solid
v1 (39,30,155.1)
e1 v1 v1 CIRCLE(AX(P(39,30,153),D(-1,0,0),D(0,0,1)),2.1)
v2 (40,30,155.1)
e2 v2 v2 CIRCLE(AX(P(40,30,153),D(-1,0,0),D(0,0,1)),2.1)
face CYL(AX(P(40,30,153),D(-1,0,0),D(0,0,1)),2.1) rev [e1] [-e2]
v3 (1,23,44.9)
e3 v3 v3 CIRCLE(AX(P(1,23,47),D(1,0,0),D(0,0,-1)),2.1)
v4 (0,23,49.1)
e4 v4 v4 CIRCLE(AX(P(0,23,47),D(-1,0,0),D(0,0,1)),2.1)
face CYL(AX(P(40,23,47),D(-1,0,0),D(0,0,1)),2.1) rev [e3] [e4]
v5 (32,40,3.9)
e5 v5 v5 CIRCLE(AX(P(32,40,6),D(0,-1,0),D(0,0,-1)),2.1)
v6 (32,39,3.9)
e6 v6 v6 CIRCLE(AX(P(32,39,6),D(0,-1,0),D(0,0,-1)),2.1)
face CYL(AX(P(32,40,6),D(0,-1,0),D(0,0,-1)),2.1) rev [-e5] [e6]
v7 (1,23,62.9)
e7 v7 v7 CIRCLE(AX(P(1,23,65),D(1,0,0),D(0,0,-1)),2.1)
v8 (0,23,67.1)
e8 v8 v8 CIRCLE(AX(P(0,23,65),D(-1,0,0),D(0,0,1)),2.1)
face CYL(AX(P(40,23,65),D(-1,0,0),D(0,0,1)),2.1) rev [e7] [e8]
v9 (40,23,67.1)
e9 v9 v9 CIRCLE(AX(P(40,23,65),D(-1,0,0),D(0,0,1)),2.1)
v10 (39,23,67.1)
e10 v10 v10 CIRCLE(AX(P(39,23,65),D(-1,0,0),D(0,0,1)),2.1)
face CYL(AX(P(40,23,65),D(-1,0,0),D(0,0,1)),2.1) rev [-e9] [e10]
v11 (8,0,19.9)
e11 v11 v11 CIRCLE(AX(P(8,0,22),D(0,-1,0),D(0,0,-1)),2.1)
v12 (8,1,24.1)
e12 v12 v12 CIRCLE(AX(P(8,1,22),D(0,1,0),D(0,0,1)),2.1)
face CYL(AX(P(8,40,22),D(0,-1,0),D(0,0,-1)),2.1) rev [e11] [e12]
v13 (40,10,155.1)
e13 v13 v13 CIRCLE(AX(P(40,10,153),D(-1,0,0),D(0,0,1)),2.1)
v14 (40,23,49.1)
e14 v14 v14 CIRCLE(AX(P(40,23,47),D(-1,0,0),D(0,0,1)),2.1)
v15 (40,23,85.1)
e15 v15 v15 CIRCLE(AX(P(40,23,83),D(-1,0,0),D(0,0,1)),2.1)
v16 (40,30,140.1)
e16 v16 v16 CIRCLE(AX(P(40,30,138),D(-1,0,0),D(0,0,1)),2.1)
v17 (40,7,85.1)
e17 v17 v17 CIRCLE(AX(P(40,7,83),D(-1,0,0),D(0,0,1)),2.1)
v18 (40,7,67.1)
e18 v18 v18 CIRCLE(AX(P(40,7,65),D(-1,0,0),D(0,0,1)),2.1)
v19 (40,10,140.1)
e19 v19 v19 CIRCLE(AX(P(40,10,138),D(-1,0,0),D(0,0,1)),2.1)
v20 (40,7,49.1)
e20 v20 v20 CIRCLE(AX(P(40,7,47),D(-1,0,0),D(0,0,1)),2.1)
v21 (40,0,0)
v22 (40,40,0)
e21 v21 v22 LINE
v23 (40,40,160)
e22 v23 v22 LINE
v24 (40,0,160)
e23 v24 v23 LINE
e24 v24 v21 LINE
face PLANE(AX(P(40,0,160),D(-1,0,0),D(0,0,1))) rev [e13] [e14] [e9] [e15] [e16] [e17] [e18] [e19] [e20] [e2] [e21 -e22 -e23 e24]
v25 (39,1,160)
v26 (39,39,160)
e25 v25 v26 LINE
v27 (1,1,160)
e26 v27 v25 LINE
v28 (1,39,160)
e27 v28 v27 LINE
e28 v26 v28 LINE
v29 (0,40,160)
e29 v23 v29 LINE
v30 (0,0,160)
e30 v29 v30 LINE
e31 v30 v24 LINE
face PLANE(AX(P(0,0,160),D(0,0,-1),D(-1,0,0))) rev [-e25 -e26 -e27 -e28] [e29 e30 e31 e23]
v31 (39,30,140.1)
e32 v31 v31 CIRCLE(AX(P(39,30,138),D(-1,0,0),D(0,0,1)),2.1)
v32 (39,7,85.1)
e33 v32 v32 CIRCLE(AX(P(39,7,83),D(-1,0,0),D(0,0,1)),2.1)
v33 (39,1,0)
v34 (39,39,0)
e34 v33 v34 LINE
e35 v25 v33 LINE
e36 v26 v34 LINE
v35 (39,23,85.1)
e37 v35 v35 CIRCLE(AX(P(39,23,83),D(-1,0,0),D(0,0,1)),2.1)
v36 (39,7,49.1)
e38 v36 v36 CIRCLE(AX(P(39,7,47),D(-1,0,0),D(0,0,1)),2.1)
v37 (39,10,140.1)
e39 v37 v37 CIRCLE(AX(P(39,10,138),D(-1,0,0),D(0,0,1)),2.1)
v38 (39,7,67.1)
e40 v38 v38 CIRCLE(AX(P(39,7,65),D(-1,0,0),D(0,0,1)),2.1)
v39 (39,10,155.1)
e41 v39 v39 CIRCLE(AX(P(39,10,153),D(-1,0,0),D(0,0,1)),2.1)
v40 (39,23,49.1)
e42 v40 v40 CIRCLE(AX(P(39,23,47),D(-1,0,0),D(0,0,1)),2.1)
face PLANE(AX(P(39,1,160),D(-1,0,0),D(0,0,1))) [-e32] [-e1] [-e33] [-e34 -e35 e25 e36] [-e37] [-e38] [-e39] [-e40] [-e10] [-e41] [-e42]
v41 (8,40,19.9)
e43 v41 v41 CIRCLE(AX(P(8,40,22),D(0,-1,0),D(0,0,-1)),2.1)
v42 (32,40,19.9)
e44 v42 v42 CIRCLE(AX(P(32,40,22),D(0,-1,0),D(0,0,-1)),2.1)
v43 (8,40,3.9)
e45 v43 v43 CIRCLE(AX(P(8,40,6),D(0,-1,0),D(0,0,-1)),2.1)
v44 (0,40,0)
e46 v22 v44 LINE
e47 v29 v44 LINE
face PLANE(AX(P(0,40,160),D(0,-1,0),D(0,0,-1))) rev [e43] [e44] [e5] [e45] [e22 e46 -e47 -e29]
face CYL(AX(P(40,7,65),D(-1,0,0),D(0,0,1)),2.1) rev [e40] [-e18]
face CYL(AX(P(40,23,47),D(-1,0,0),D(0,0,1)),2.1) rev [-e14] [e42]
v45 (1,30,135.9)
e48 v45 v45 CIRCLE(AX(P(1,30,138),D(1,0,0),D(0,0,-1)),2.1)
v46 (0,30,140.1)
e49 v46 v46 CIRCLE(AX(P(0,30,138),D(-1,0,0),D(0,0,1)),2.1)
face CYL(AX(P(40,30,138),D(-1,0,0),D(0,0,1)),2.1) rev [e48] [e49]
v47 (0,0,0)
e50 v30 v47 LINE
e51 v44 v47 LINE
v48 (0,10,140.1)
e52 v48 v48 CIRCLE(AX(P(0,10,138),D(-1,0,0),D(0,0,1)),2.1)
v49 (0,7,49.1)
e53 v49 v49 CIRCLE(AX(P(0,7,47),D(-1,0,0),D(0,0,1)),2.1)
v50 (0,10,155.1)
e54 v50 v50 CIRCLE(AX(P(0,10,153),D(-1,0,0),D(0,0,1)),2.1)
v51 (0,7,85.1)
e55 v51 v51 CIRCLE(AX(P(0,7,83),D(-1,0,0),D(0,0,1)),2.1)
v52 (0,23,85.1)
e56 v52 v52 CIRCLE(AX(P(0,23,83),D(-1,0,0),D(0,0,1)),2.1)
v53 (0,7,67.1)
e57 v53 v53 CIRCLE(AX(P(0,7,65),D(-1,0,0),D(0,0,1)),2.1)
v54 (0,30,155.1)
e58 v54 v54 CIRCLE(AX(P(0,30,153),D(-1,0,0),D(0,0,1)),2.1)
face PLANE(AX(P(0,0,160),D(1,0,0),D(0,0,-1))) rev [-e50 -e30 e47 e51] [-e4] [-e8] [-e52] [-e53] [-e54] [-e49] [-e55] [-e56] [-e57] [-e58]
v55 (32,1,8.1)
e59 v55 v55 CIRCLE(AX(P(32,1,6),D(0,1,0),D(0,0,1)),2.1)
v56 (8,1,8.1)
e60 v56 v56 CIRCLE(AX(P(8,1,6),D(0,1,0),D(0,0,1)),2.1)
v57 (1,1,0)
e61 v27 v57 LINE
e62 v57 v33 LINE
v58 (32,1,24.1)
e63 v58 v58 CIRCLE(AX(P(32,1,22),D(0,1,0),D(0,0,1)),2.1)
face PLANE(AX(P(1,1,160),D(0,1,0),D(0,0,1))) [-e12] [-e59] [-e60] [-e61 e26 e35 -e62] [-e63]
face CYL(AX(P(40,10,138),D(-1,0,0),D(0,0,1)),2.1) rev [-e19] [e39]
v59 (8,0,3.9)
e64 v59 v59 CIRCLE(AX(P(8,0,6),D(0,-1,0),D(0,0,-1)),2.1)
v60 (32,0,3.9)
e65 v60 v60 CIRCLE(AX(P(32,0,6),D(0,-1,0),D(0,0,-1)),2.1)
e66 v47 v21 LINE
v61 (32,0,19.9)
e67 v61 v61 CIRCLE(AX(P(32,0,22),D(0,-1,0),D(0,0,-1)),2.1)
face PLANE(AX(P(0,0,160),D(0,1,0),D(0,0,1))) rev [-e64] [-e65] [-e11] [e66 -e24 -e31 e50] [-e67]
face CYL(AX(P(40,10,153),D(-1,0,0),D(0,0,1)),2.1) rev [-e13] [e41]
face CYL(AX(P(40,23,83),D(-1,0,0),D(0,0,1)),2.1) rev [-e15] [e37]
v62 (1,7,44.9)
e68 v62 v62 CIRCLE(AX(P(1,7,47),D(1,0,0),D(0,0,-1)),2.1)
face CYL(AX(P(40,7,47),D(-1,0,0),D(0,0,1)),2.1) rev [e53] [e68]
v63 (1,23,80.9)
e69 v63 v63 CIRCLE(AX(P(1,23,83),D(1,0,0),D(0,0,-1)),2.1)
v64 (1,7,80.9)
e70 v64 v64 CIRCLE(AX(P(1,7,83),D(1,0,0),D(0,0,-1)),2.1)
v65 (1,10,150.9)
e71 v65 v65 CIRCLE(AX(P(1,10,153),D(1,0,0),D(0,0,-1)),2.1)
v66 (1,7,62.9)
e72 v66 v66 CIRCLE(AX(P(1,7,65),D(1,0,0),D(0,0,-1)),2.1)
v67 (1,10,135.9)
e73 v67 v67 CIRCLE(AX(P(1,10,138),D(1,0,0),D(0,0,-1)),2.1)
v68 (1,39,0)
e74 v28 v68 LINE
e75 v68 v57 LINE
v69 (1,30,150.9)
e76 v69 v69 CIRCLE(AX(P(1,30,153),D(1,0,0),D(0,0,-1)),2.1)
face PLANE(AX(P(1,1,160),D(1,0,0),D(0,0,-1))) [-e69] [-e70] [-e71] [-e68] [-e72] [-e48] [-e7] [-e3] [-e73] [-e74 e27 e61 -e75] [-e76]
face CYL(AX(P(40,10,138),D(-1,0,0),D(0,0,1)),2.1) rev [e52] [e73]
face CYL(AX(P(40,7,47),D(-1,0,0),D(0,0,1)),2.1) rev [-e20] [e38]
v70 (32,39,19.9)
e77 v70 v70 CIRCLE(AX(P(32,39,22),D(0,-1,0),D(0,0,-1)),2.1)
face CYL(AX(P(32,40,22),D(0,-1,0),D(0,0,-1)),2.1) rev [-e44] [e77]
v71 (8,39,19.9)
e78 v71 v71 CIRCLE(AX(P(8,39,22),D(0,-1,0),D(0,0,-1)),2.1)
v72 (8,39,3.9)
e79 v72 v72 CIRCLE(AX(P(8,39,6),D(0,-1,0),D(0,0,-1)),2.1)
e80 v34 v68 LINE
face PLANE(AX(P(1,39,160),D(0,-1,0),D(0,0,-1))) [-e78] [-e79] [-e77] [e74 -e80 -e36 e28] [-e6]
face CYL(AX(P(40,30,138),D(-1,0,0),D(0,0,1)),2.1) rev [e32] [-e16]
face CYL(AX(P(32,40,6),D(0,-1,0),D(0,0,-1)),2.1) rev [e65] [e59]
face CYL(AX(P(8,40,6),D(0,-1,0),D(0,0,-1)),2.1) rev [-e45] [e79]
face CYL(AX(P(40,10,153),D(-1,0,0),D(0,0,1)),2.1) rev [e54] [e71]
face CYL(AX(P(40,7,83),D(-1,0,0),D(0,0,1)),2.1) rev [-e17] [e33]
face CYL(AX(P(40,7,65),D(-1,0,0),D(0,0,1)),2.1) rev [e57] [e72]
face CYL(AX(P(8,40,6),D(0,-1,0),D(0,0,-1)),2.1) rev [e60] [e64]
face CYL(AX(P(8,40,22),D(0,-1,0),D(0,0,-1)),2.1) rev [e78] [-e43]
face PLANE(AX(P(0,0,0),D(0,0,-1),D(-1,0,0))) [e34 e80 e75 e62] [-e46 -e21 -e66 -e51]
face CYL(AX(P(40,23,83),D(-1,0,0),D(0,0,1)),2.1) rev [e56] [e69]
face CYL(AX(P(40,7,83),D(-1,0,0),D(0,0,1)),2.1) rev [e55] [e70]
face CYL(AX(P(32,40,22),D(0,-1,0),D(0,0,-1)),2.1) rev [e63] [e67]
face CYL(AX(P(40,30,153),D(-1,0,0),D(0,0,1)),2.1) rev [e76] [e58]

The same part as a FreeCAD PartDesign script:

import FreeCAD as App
import Part
import Sketcher

V = App.Vector

doc = App.newDocument("Part")
body = doc.addObject("PartDesign::Body", "Body")

sketch1 = doc.addObject("Sketcher::SketchObject", "Sketch")
body.addObject(sketch1)
sketch1.AttachmentSupport = (doc.XY_Plane, [""])
sketch1.MapMode = "FlatFace"
sketch1.addGeometry(Part.LineSegment(V(0, 40, 0), V(0, 0, 0)), False)
sketch1.addGeometry(Part.LineSegment(V(0, 0, 0), V(40, 0, 0)), False)
sketch1.addGeometry(Part.LineSegment(V(40, 0, 0), V(40, 40, 0)), False)
sketch1.addGeometry(Part.LineSegment(V(40, 40, 0), V(0, 40, 0)), False)
sketch1.addGeometry(Part.LineSegment(V(39, 1, 0), V(1, 1, 0)), False)
sketch1.addGeometry(Part.LineSegment(V(1, 1, 0), V(1, 39, 0)), False)
sketch1.addGeometry(Part.LineSegment(V(1, 39, 0), V(39, 39, 0)), False)
sketch1.addGeometry(Part.LineSegment(V(39, 39, 0), V(39, 1, 0)), False)
sketch1.addConstraint(Sketcher.Constraint("Coincident", 0, 2, 1, 1))
sketch1.addConstraint(Sketcher.Constraint("Coincident", 1, 2, 2, 1))
sketch1.addConstraint(Sketcher.Constraint("Coincident", 2, 2, 3, 1))
sketch1.addConstraint(Sketcher.Constraint("Coincident", 3, 2, 0, 1))
sketch1.addConstraint(Sketcher.Constraint("Coincident", 4, 2, 5, 1))
sketch1.addConstraint(Sketcher.Constraint("Coincident", 5, 2, 6, 1))
sketch1.addConstraint(Sketcher.Constraint("Coincident", 6, 2, 7, 1))
sketch1.addConstraint(Sketcher.Constraint("Coincident", 7, 2, 4, 1))
sketch1.addConstraint(Sketcher.Constraint("Vertical", 0))
sketch1.addConstraint(Sketcher.Constraint("Horizontal", 1))
sketch1.addConstraint(Sketcher.Constraint("Vertical", 2))
sketch1.addConstraint(Sketcher.Constraint("Horizontal", 3))
sketch1.addConstraint(Sketcher.Constraint("Horizontal", 4))
sketch1.addConstraint(Sketcher.Constraint("Vertical", 5))
sketch1.addConstraint(Sketcher.Constraint("Horizontal", 6))
sketch1.addConstraint(Sketcher.Constraint("Vertical", 7))
sketch1.addConstraint(Sketcher.Constraint("Coincident", 0, 2, -1, 1))
sketch1.addConstraint(Sketcher.Constraint("Equal", 3, 0))
sketch1.addConstraint(Sketcher.Constraint("Equal", 6, 5))
sketch1.addConstraint(Sketcher.Constraint("DistanceX", 1, 1, 1, 2, 40.0))
sketch1.addConstraint(Sketcher.Constraint("DistanceX", 4, 2, 4, 1, 38.0))
sketch1.addConstraint(Sketcher.Constraint("DistanceX", -1, 1, 4, 2, 1.0))
sketch1.addConstraint(Sketcher.Constraint("DistanceY", -1, 1, 4, 2, 1.0))
pad1 = doc.addObject("PartDesign::Pad", "Pad")
body.addObject(pad1)
pad1.Profile = sketch1
pad1.Length = 160

sketch2 = doc.addObject("Sketcher::SketchObject", "Sketch001")
body.addObject(sketch2)
sketch2.AttachmentSupport = (doc.XZ_Plane, [""])
sketch2.MapMode = "FlatFace"
sketch2.addGeometry(Part.Circle(V(8, 6, 0), V(0, 0, 1), 2.1), False)
sketch2.addGeometry(Part.Circle(V(32, 22, 0), V(0, 0, 1), 2.1), False)
sketch2.addGeometry(Part.Circle(V(8, 22, 0), V(0, 0, 1), 2.1), False)
sketch2.addGeometry(Part.Circle(V(32, 6, 0), V(0, 0, 1), 2.1), False)
sketch2.addConstraint(Sketcher.Constraint("Equal", 0, 1))
sketch2.addConstraint(Sketcher.Constraint("Equal", 1, 2))
sketch2.addConstraint(Sketcher.Constraint("Equal", 2, 3))
sketch2.addConstraint(Sketcher.Constraint("Horizontal", 1, 3, 2, 3))
sketch2.addConstraint(Sketcher.Constraint("Horizontal", 0, 3, 3, 3))
sketch2.addConstraint(Sketcher.Constraint("Vertical", 0, 3, 2, 3))
sketch2.addConstraint(Sketcher.Constraint("Vertical", 1, 3, 3, 3))
sketch2.addConstraint(Sketcher.Constraint("Diameter", 0, 4.2))
sketch2.addConstraint(Sketcher.Constraint("DistanceX", -1, 1, 0, 3, 8.0))
sketch2.addConstraint(Sketcher.Constraint("DistanceY", -1, 1, 0, 3, 6.0))
sketch2.addConstraint(Sketcher.Constraint("DistanceX", -1, 1, 1, 3, 32.0))
sketch2.addConstraint(Sketcher.Constraint("DistanceY", -1, 1, 1, 3, 22.0))
pocket1 = doc.addObject("PartDesign::Pocket", "Pocket")
body.addObject(pocket1)
pocket1.Profile = sketch2
pocket1.Type = "ThroughAll"

sketch3 = doc.addObject("Sketcher::SketchObject", "Sketch002")
body.addObject(sketch3)
sketch3.AttachmentSupport = (doc.YZ_Plane, [""])
sketch3.MapMode = "FlatFace"
sketch3.addGeometry(Part.Circle(V(10, 138, 0), V(0, 0, 1), 2.1), False)
sketch3.addGeometry(Part.Circle(V(30, 153, 0), V(0, 0, 1), 2.1), False)
sketch3.addGeometry(Part.Circle(V(10, 153, 0), V(0, 0, 1), 2.1), False)
sketch3.addGeometry(Part.Circle(V(30, 138, 0), V(0, 0, 1), 2.1), False)
sketch3.addGeometry(Part.Circle(V(23, 83, 0), V(0, 0, 1), 2.1), False)
sketch3.addGeometry(Part.Circle(V(7, 65, 0), V(0, 0, 1), 2.1), False)
sketch3.addGeometry(Part.Circle(V(23, 65, 0), V(0, 0, 1), 2.1), False)
sketch3.addGeometry(Part.Circle(V(7, 47, 0), V(0, 0, 1), 2.1), False)
sketch3.addGeometry(Part.Circle(V(23, 47, 0), V(0, 0, 1), 2.1), False)
sketch3.addGeometry(Part.Circle(V(7, 83, 0), V(0, 0, 1), 2.1), False)
sketch3.addConstraint(Sketcher.Constraint("Equal", 0, 1))
sketch3.addConstraint(Sketcher.Constraint("Equal", 1, 2))
sketch3.addConstraint(Sketcher.Constraint("Equal", 2, 3))
sketch3.addConstraint(Sketcher.Constraint("Equal", 3, 4))
sketch3.addConstraint(Sketcher.Constraint("Equal", 4, 5))
sketch3.addConstraint(Sketcher.Constraint("Equal", 5, 6))
sketch3.addConstraint(Sketcher.Constraint("Equal", 6, 7))
sketch3.addConstraint(Sketcher.Constraint("Equal", 7, 8))
sketch3.addConstraint(Sketcher.Constraint("Equal", 8, 9))
sketch3.addConstraint(Sketcher.Constraint("Horizontal", 1, 3, 2, 3))
sketch3.addConstraint(Sketcher.Constraint("Horizontal", 0, 3, 3, 3))
sketch3.addConstraint(Sketcher.Constraint("Horizontal", 5, 3, 6, 3))
sketch3.addConstraint(Sketcher.Constraint("Horizontal", 7, 3, 8, 3))
sketch3.addConstraint(Sketcher.Constraint("Horizontal", 4, 3, 9, 3))
sketch3.addConstraint(Sketcher.Constraint("Vertical", 0, 3, 2, 3))
sketch3.addConstraint(Sketcher.Constraint("Vertical", 1, 3, 3, 3))
sketch3.addConstraint(Sketcher.Constraint("Vertical", 4, 3, 6, 3))
sketch3.addConstraint(Sketcher.Constraint("Vertical", 5, 3, 7, 3))
sketch3.addConstraint(Sketcher.Constraint("Vertical", 6, 3, 8, 3))
sketch3.addConstraint(Sketcher.Constraint("Vertical", 7, 3, 9, 3))
sketch3.addConstraint(Sketcher.Constraint("Diameter", 0, 4.2))
sketch3.addConstraint(Sketcher.Constraint("DistanceX", -1, 1, 0, 3, 10.0))
sketch3.addConstraint(Sketcher.Constraint("DistanceY", -1, 1, 0, 3, 138.0))
sketch3.addConstraint(Sketcher.Constraint("DistanceX", -1, 1, 1, 3, 30.0))
sketch3.addConstraint(Sketcher.Constraint("DistanceY", -1, 1, 1, 3, 153.0))
sketch3.addConstraint(Sketcher.Constraint("DistanceX", -1, 1, 4, 3, 23.0))
sketch3.addConstraint(Sketcher.Constraint("DistanceY", -1, 1, 4, 3, 83.0))
sketch3.addConstraint(Sketcher.Constraint("DistanceX", -1, 1, 5, 3, 7.0))
sketch3.addConstraint(Sketcher.Constraint("DistanceY", -1, 1, 5, 3, 65.0))
sketch3.addConstraint(Sketcher.Constraint("DistanceY", -1, 1, 7, 3, 47.0))
pocket2 = doc.addObject("PartDesign::Pocket", "Pocket001")
body.addObject(pocket2)
pocket2.Profile = sketch3
pocket2.Type = "ThroughAll"
pocket2.Reversed = True

doc.recompute()
